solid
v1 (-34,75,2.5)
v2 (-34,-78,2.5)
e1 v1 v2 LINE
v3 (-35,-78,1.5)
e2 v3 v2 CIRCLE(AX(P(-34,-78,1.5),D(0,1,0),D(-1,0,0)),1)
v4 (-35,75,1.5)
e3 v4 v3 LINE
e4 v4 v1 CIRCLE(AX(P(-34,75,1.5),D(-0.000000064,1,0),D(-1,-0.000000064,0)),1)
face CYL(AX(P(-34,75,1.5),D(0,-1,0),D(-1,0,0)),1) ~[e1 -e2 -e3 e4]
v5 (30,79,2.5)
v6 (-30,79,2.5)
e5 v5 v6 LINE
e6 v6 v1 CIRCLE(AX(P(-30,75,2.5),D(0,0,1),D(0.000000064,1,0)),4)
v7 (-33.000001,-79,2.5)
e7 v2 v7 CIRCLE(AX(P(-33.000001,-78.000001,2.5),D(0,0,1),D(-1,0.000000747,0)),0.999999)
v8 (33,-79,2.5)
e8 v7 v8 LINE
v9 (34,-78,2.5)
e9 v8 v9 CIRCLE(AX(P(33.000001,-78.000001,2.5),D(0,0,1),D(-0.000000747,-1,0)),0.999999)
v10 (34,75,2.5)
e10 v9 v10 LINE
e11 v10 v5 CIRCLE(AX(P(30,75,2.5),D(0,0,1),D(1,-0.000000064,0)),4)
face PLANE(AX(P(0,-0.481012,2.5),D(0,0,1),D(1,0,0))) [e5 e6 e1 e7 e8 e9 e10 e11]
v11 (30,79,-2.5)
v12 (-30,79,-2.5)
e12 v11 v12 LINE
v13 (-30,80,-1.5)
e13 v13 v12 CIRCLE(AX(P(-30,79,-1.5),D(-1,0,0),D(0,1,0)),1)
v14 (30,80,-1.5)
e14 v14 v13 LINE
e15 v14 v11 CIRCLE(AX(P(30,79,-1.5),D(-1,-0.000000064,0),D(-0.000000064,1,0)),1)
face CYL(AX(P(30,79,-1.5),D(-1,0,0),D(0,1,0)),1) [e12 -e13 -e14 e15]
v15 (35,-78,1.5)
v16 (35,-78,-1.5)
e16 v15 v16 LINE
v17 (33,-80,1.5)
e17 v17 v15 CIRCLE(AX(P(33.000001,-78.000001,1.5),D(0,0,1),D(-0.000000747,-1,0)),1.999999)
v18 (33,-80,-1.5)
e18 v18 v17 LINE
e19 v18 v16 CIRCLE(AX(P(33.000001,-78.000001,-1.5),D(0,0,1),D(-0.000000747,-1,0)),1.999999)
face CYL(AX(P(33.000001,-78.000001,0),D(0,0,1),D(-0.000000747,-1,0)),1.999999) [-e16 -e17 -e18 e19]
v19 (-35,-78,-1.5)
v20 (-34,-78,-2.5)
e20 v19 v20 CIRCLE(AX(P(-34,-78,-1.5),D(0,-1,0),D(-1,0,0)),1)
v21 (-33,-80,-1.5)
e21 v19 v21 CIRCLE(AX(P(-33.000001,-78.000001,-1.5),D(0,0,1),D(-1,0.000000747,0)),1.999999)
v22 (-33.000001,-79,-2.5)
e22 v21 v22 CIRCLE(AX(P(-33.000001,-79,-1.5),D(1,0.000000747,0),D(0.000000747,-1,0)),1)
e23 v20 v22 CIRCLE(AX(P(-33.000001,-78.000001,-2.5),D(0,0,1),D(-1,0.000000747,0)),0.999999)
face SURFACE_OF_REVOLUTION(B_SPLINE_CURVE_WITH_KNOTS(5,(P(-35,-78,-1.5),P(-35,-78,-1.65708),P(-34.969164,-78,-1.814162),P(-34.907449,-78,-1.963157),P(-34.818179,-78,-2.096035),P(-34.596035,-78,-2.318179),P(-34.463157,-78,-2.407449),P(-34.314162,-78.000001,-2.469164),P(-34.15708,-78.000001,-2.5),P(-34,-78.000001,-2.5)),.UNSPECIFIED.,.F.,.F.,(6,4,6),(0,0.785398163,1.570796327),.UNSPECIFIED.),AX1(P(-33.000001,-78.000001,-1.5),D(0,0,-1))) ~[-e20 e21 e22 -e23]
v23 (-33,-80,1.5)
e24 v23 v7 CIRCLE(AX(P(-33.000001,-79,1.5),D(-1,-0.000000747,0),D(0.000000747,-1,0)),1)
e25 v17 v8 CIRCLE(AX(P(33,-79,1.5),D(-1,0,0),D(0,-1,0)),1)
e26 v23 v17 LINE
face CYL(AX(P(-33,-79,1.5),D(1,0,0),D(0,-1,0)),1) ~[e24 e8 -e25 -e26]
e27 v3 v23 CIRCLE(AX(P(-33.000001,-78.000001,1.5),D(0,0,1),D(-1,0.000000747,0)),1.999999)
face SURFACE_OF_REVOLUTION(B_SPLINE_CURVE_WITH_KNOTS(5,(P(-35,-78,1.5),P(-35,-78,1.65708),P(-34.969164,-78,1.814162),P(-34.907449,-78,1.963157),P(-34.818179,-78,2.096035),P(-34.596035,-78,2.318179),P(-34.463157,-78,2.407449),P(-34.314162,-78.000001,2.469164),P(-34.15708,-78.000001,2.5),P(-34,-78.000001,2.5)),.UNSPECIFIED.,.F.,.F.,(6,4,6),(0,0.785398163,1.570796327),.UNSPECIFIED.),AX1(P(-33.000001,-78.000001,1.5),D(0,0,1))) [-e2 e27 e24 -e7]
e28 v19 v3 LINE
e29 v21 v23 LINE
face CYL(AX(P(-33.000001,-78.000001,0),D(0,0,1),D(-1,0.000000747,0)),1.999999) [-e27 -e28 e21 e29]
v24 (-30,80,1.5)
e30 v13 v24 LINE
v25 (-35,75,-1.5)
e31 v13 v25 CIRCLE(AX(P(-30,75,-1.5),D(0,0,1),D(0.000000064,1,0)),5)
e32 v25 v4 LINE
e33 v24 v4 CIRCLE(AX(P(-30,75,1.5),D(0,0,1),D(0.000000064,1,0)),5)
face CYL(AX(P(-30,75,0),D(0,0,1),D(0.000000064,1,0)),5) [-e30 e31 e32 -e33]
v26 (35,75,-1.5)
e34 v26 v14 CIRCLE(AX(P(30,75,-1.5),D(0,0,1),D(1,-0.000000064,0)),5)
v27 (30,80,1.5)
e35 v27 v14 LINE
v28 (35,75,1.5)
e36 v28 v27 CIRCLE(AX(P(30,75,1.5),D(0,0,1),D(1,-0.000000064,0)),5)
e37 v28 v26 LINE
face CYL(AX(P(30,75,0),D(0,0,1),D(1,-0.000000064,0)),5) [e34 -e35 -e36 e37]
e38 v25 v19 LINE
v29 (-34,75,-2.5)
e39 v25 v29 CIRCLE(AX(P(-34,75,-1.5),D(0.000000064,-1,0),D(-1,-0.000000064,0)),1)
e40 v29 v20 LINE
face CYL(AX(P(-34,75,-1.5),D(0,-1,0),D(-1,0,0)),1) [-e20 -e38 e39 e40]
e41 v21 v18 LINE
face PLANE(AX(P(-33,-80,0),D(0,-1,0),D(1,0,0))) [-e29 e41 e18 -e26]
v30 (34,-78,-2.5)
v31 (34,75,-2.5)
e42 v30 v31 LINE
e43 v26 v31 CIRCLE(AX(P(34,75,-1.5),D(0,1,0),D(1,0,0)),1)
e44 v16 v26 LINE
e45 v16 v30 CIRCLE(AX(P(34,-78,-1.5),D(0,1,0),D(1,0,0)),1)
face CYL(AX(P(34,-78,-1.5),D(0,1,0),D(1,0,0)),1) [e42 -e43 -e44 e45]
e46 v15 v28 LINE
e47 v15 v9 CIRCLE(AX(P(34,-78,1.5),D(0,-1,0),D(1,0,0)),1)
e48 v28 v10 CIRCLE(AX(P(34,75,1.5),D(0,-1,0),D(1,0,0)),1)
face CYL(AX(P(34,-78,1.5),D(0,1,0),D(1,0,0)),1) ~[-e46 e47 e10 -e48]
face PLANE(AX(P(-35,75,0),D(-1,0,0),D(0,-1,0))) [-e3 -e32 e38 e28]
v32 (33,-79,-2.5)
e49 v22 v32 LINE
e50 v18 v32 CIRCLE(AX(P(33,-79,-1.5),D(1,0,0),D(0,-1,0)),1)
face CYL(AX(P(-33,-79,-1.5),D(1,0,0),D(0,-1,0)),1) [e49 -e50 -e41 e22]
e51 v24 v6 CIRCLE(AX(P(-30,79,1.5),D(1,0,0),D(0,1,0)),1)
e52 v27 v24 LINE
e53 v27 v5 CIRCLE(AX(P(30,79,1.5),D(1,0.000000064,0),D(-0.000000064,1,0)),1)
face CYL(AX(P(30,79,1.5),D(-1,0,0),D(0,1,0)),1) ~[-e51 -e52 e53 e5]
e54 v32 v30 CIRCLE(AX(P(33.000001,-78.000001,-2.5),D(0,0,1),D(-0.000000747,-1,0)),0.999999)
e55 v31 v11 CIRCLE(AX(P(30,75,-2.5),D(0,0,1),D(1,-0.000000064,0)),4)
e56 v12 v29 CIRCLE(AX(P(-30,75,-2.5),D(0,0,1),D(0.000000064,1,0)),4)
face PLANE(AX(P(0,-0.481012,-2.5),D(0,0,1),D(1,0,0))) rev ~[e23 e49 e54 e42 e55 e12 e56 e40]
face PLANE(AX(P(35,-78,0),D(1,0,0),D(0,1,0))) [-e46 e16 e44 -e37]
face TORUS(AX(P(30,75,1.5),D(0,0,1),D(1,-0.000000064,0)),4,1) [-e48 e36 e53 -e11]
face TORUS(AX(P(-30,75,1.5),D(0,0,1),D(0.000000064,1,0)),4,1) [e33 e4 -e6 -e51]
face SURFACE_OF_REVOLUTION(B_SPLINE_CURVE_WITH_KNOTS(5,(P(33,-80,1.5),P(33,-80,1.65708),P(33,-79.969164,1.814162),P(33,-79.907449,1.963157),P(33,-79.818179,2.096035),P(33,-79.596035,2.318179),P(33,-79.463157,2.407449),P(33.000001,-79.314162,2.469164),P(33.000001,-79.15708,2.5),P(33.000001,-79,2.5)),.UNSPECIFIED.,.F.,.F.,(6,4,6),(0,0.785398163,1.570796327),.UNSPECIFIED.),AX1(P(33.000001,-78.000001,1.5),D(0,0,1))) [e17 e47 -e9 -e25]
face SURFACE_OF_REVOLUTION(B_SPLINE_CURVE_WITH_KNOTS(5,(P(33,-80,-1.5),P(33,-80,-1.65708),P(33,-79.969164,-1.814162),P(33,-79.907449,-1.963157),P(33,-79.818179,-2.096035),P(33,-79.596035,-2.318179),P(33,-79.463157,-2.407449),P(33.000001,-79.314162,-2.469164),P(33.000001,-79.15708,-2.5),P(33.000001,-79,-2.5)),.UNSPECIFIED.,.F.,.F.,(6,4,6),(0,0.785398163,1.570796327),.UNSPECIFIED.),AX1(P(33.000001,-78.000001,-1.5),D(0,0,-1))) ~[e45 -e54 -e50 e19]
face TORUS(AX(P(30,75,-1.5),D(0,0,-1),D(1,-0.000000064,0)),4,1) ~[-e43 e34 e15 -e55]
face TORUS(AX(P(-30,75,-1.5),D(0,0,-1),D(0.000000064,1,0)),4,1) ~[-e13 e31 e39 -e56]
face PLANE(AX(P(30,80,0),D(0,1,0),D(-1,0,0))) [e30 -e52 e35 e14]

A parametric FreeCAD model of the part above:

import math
import FreeCAD as App
import Part
import Sketcher


def edges_at(feature, points):
    """Names of the edges that pass closest to the given points."""
    edges = feature.Shape.Edges
    near = lambda p: min(range(len(edges)), key=lambda i: edges[i].distToShape(Part.Vertex(*p))[0])
    return sorted({f"Edge{near(p) + 1}" for p in points})

doc = App.newDocument("Part")
body = doc.addObject("PartDesign::Body", "Body")

# Sketch on XY plane
sketch1 = body.newObject("Sketcher::SketchObject", "Sketch")
sketch1.AttachmentSupport = (doc.getObject("XY_Plane"), [""])
sketch1.MapMode = "FlatFace"
sketch1.addGeometry([
    Part.LineSegment(App.Vector(30, 80, 0), App.Vector(-30, 80, 0)),  # 0
    Part.ArcOfCircle(Part.Circle(App.Vector(-30, 75, 0), App.Vector(0, 0, 1), 5), math.radians(89.999996), math.radians(180.000004)),  # 1
    Part.LineSegment(App.Vector(-35, 75, 0), App.Vector(-35, -78, 0)),  # 2
    Part.ArcOfCircle(Part.Circle(App.Vector(-33.000001, -78.000001, 0), App.Vector(0, 0, 1), 1.999999), math.radians(179.999957), math.radians(270.000043)),  # 3
    Part.LineSegment(App.Vector(-33, -80, 0), App.Vector(33, -80, 0)),  # 4
    Part.ArcOfCircle(Part.Circle(App.Vector(33.000001, -78.000001, 0), App.Vector(0, 0, 1), 1.999999), math.radians(-90.000043), math.radians(0.000043)),  # 5
    Part.LineSegment(App.Vector(35, -78, 0), App.Vector(35, 75, 0)),  # 6
    Part.ArcOfCircle(Part.Circle(App.Vector(30, 75, 0), App.Vector(0, 0, 1), 5), math.radians(-0.000004), math.radians(90.000004)),  # 7
], False)
sketch1.addConstraint([
    Sketcher.Constraint("Tangent", 0, 2, 1, 1),
    Sketcher.Constraint("Tangent", 1, 2, 2, 1),
    Sketcher.Constraint("Tangent", 2, 2, 3, 1),
    Sketcher.Constraint("Tangent", 3, 2, 4, 1),
    Sketcher.Constraint("Tangent", 4, 2, 5, 1),
    Sketcher.Constraint("Tangent", 5, 2, 6, 1),
    Sketcher.Constraint("Tangent", 6, 2, 7, 1),
    Sketcher.Constraint("Tangent", 7, 2, 0, 1),
    Sketcher.Constraint("Horizontal", 0),
    Sketcher.Constraint("Vertical", 2),
    Sketcher.Constraint("Horizontal", 4),
    Sketcher.Constraint("Vertical", 6),
    Sketcher.Constraint("Equal", 3, 5),
    Sketcher.Constraint("Equal", 1, 7),
    Sketcher.Constraint("Radius", 1, 5.0),
    Sketcher.Constraint("Radius", 3, 1.999999),
    Sketcher.Constraint("DistanceX", 0, 2, 0, 1, 60.0),
    Sketcher.Constraint("DistanceY", 2, 2, 2, 1, 153.0),
    Sketcher.Constraint("DistanceX", 1, 3, -1, 1, 30.0),
    Sketcher.Constraint("DistanceY", -1, 1, 1, 3, 75.0),
])
pad1 = body.newObject("PartDesign::Pad", "Pad")
pad1.Profile = sketch1
pad1.Length = 5
pad1.Midplane = True
doc.recompute()

fillet = body.newObject("PartDesign::Fillet", "Fillet")
fillet.Base = (pad1, edges_at(pad1, [
    (35, -1.5, -2.5),
    (33.536, 78.536, -2.5),
    (0, 80, -2.5),
    (-33.536, 78.536, -2.5),
    (-35, -1.5, -2.5),
    (-34.414, -79.414, -2.5),
    (0, -80, -2.5),
    (34.414, -79.414, -2.5),
    (35, -1.5, 2.5),
    (33.536, 78.536, 2.5),
    (0, 80, 2.5),
    (-33.536, 78.536, 2.5),
    (-35, -1.5, 2.5),
    (-34.414, -79.414, 2.5),
    (0, -80, 2.5),
    (34.414, -79.414, 2.5),
]))
fillet.Radius = 1

doc.recompute()
